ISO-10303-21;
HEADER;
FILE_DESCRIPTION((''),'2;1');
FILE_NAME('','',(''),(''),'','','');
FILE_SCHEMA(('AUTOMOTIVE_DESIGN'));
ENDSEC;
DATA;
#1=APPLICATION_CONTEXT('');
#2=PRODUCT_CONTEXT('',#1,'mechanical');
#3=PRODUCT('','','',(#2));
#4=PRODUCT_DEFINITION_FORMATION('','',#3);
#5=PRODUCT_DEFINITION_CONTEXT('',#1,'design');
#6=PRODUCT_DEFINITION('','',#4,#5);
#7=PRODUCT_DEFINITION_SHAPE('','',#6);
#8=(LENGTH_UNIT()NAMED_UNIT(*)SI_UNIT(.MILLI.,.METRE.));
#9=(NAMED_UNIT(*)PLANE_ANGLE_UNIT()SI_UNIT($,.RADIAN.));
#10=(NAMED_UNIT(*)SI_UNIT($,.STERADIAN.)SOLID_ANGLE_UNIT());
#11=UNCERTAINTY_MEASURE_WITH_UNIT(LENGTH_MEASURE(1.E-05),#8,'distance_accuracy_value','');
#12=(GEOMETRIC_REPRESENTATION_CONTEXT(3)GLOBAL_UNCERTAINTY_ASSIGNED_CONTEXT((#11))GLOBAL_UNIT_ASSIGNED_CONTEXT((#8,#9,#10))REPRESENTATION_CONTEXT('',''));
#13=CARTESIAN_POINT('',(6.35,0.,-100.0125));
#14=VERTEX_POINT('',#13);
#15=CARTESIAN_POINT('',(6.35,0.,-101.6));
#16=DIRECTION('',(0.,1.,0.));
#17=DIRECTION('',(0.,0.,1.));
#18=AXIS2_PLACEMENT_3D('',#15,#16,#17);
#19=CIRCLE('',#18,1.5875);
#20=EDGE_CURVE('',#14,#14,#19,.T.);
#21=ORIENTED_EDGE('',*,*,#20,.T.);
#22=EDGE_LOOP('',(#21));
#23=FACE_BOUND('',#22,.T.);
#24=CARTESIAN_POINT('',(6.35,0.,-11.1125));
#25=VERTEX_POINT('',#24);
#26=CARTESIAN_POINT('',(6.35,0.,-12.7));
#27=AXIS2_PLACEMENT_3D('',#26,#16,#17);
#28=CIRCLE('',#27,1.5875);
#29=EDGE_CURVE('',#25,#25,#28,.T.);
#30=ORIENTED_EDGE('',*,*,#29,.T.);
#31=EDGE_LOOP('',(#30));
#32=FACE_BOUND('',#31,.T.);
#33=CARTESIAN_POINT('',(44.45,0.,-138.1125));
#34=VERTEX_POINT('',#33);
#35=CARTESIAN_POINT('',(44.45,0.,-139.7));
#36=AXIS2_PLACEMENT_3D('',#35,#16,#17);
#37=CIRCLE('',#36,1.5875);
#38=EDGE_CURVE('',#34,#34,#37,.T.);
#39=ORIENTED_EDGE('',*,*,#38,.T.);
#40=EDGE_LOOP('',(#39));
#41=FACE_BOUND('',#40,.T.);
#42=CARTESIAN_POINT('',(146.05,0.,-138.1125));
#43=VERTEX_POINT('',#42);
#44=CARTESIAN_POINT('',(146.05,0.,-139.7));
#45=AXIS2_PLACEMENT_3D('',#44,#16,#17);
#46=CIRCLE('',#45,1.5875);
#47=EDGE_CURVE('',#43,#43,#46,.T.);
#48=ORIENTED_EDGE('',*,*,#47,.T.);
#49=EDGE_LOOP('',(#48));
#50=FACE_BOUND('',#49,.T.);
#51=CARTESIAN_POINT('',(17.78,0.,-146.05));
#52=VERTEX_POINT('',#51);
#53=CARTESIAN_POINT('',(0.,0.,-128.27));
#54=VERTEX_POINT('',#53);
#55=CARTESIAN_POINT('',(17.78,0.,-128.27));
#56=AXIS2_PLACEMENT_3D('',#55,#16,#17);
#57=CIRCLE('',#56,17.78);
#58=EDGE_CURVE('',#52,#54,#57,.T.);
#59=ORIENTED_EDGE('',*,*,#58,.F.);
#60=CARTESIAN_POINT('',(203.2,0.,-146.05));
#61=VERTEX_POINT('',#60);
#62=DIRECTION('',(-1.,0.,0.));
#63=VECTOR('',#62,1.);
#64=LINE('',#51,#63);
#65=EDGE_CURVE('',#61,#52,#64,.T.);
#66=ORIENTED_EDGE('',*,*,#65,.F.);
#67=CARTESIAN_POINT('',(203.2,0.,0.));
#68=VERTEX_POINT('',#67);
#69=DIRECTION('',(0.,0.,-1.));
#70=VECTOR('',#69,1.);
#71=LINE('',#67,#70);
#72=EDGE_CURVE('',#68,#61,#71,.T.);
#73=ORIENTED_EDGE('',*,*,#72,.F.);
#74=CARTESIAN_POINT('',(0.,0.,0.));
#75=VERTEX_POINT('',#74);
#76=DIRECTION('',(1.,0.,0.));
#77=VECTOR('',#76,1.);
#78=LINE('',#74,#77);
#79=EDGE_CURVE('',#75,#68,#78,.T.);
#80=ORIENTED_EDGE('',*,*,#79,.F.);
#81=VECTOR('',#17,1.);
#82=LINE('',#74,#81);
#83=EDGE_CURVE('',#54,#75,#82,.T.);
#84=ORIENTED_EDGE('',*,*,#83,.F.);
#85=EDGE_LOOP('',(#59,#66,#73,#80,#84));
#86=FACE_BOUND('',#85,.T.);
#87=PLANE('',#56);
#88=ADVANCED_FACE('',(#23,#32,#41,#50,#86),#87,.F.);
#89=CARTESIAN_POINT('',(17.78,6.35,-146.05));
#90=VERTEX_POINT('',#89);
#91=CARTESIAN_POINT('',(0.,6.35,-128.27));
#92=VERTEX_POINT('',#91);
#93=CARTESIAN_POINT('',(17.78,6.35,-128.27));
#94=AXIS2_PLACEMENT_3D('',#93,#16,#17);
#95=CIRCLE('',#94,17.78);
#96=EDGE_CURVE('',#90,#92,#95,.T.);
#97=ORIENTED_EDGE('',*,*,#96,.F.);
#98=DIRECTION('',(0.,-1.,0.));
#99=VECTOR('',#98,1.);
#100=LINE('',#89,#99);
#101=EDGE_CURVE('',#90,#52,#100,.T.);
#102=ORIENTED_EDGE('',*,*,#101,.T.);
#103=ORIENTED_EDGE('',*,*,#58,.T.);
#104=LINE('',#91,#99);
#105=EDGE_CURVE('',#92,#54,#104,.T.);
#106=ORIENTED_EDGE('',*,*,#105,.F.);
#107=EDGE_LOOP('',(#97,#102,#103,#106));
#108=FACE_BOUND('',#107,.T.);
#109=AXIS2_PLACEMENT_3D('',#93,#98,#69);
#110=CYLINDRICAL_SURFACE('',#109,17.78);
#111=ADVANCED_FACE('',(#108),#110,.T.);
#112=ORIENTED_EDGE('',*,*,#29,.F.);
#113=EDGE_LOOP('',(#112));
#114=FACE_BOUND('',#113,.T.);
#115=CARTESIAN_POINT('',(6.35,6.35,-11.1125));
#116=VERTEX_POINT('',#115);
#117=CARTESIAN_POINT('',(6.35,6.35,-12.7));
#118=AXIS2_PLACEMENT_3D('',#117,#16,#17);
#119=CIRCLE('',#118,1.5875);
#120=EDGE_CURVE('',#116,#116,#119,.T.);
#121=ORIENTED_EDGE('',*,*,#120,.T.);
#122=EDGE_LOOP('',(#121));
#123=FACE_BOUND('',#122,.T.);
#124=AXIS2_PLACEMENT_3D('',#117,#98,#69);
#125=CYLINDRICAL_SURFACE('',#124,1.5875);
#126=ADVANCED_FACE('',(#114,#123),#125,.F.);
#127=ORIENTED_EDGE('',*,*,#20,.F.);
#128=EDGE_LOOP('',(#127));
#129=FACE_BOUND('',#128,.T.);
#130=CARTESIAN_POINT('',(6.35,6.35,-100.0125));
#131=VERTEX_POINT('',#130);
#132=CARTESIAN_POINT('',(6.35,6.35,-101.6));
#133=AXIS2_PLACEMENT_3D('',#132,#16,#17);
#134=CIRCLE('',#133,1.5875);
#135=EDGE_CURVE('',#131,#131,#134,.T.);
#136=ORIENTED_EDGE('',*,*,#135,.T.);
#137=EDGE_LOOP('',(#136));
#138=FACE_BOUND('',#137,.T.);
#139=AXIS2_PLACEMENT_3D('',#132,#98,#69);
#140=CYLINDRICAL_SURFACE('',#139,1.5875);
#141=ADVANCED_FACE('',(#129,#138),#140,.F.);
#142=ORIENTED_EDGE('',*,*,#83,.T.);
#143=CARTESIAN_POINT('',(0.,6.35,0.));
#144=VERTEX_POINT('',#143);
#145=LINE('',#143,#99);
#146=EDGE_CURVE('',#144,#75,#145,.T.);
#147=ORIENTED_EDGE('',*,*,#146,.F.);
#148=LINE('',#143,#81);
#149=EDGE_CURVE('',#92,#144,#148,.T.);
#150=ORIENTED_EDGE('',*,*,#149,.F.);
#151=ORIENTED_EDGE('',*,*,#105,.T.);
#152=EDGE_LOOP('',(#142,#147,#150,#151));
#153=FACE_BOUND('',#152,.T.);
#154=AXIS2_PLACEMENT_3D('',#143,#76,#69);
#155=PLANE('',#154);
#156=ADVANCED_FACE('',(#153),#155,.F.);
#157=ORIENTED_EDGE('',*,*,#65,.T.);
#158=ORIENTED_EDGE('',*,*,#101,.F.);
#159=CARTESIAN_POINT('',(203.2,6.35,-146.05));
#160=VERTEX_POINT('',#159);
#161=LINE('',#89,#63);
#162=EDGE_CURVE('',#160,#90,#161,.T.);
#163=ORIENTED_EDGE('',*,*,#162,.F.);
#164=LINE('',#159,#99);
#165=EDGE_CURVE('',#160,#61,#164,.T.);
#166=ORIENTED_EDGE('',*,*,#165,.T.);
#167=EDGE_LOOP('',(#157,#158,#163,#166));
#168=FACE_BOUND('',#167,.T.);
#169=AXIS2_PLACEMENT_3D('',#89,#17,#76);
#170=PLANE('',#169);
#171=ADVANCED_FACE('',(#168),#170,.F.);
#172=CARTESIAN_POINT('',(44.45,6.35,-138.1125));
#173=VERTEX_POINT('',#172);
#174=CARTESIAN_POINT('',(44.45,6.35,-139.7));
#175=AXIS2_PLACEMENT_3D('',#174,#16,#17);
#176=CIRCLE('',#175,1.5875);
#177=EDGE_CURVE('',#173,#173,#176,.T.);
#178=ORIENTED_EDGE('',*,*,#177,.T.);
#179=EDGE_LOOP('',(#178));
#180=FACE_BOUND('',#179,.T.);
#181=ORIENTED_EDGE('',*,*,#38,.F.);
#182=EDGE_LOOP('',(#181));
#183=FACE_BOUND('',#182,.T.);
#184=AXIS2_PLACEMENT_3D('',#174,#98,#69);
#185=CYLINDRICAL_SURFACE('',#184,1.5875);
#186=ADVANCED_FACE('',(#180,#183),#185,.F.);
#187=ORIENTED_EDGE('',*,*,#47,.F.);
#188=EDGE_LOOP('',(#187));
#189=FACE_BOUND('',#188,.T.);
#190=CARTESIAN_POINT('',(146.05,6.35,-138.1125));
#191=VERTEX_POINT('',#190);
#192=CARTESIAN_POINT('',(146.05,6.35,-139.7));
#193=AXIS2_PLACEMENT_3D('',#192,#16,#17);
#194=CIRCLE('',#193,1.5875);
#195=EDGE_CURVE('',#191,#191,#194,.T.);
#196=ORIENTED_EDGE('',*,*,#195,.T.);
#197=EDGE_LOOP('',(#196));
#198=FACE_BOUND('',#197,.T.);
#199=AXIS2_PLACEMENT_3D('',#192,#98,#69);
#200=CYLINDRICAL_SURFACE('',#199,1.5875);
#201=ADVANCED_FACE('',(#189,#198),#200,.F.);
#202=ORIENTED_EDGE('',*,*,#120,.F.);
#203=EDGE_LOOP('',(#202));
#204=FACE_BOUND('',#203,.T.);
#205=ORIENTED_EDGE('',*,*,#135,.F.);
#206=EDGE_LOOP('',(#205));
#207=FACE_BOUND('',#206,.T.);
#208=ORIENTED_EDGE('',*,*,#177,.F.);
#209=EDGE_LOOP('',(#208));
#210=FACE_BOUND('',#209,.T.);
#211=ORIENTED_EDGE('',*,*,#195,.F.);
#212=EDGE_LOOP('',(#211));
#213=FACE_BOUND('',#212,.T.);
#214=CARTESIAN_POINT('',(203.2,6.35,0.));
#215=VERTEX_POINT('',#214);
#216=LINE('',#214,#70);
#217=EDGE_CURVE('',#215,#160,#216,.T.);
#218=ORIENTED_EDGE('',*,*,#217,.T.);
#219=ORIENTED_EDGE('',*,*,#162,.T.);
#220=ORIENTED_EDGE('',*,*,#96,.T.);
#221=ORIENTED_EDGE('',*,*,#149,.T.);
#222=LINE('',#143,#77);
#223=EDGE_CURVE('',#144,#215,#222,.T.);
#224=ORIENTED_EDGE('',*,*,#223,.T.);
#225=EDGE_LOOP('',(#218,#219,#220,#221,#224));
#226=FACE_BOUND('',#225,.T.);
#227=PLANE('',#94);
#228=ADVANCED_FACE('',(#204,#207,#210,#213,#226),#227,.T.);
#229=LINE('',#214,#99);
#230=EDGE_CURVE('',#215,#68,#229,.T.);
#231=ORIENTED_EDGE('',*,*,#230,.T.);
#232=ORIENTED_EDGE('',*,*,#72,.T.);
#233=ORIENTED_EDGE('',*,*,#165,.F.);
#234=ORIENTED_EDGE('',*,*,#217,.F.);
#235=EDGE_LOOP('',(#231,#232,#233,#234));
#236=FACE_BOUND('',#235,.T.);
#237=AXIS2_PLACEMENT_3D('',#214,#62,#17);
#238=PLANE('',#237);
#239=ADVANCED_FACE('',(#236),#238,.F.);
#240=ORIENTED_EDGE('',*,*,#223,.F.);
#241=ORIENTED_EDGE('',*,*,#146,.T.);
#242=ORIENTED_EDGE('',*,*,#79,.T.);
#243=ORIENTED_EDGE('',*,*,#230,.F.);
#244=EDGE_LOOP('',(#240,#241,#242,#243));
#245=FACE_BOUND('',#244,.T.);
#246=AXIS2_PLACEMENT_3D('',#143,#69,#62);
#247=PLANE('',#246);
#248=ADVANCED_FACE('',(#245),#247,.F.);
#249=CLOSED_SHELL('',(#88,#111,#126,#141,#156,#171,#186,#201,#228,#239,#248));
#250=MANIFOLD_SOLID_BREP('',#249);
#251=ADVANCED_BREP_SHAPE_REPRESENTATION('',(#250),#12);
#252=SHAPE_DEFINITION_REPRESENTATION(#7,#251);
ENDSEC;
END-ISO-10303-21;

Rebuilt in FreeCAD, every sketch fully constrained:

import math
import FreeCAD as App
import Part
import Sketcher
from FreeCAD import Vector
Q = App.Units.Quantity

doc = App.newDocument("Part")
params = doc.addObject("Spreadsheet::Sheet", "Params")
for row, (alias, value) in enumerate([
    ("sketch1_radius", "0.7 in"),
    ("sketch1_width", "8 in"),
    ("sketch1_diameter", "0.125 in"),
    ("sketch1_height", "5.75 in"),
    ("pad1_length", "0.25 in"),
], start=1):
    params.set(f"A{row}", alias)
    params.set(f"B{row}", "=" + value)
    params.setAlias(f"B{row}", alias)

body = doc.addObject("PartDesign::Body", "Body")

sketch1 = body.newObject("Sketcher::SketchObject", "Sketch")
sketch1.AttachmentSupport = (doc.getObject("XZ_Plane"), [""])
sketch1.MapMode = "FlatFace"
sketch1.addGeometry([
    Part.LineSegment(Vector(0, 0, 0), Vector(203.2, 0, 0)),
    Part.LineSegment(Vector(203.2, 0, 0), Vector(203.2, -146.1, 0)),
    Part.LineSegment(Vector(203.2, -146.1, 0), Vector(17.8, -146.1, 0)),
    Part.ArcOfCircle(Part.Circle(Vector(17.8, -128.3, 0), Vector(0, 0, 1), 17.8), math.radians(-180), math.radians(-90)),
    Part.LineSegment(Vector(0, -128.3, 0), Vector(0, 0, 0)),
    Part.Circle(Vector(6.3, -12.7, 0), Vector(0, 0, 1), 1.6),
    Part.Circle(Vector(6.3, -101.6, 0), Vector(0, 0, 1), 1.6),
    Part.Circle(Vector(44.5, -139.7, 0), Vector(0, 0, 1), 1.6),
    Part.Circle(Vector(146.1, -139.7, 0), Vector(0, 0, 1), 1.6),
], False)
sketch1.addConstraint([
    Sketcher.Constraint("Coincident", 0, 2, 1, 1),
    Sketcher.Constraint("Coincident", 1, 2, 2, 1),
    Sketcher.Constraint("Tangent", 2, 2, 3, 2),
    Sketcher.Constraint("Tangent", 3, 1, 4, 1),
    Sketcher.Constraint("Coincident", 4, 2, 0, 1),
    Sketcher.Constraint("Horizontal", 0),
    Sketcher.Constraint("Vertical", 1),
    Sketcher.Constraint("Horizontal", 2),
    Sketcher.Constraint("Vertical", 4),
    Sketcher.Constraint("Coincident", 4, 2, -1, 1),
    Sketcher.Constraint("Equal", 5, 6),
    Sketcher.Constraint("Equal", 6, 7),
    Sketcher.Constraint("Equal", 7, 8),
    Sketcher.Constraint("Horizontal", 7, 3, 8, 3),
    Sketcher.Constraint("Vertical", 5, 3, 6, 3),
    Sketcher.Constraint("Radius", 3, Q("0.7 in")),
    Sketcher.Constraint("DistanceX", 0, 1, 0, 2, Q("8 in")),
    Sketcher.Constraint("Diameter", 5, Q("0.125 in")),
    Sketcher.Constraint("DistanceY", 6, 3, -1, 1, Q("4 in")),
    Sketcher.Constraint("DistanceY", 7, 3, 5, 3, Q("5 in")),
    Sketcher.Constraint("DistanceX", 7, 3, 8, 3, Q("4 in")),
    Sketcher.Constraint("DistanceY", 1, 2, 1, 1, Q("5.75 in")),
    Sketcher.Constraint("DistanceY", 5, 3, -1, 1, Q("0.5 in")),
    Sketcher.Constraint("DistanceX", 6, 3, 7, 3, Q("1.5 in")),
    Sketcher.Constraint("DistanceX", -1, 1, 5, 3, Q("0.25 in")),
])
sketch1.setExpression("Constraints[15]", "Params.sketch1_radius")
sketch1.setExpression("Constraints[16]", "Params.sketch1_width")
sketch1.setExpression("Constraints[17]", "Params.sketch1_diameter")
sketch1.setExpression("Constraints[21]", "Params.sketch1_height")
pad1 = body.newObject("PartDesign::Pad", "Pad")
pad1.Profile = sketch1
pad1.setExpression("Length", "Params.pad1_length")
pad1.Reversed = True

doc.recompute()
